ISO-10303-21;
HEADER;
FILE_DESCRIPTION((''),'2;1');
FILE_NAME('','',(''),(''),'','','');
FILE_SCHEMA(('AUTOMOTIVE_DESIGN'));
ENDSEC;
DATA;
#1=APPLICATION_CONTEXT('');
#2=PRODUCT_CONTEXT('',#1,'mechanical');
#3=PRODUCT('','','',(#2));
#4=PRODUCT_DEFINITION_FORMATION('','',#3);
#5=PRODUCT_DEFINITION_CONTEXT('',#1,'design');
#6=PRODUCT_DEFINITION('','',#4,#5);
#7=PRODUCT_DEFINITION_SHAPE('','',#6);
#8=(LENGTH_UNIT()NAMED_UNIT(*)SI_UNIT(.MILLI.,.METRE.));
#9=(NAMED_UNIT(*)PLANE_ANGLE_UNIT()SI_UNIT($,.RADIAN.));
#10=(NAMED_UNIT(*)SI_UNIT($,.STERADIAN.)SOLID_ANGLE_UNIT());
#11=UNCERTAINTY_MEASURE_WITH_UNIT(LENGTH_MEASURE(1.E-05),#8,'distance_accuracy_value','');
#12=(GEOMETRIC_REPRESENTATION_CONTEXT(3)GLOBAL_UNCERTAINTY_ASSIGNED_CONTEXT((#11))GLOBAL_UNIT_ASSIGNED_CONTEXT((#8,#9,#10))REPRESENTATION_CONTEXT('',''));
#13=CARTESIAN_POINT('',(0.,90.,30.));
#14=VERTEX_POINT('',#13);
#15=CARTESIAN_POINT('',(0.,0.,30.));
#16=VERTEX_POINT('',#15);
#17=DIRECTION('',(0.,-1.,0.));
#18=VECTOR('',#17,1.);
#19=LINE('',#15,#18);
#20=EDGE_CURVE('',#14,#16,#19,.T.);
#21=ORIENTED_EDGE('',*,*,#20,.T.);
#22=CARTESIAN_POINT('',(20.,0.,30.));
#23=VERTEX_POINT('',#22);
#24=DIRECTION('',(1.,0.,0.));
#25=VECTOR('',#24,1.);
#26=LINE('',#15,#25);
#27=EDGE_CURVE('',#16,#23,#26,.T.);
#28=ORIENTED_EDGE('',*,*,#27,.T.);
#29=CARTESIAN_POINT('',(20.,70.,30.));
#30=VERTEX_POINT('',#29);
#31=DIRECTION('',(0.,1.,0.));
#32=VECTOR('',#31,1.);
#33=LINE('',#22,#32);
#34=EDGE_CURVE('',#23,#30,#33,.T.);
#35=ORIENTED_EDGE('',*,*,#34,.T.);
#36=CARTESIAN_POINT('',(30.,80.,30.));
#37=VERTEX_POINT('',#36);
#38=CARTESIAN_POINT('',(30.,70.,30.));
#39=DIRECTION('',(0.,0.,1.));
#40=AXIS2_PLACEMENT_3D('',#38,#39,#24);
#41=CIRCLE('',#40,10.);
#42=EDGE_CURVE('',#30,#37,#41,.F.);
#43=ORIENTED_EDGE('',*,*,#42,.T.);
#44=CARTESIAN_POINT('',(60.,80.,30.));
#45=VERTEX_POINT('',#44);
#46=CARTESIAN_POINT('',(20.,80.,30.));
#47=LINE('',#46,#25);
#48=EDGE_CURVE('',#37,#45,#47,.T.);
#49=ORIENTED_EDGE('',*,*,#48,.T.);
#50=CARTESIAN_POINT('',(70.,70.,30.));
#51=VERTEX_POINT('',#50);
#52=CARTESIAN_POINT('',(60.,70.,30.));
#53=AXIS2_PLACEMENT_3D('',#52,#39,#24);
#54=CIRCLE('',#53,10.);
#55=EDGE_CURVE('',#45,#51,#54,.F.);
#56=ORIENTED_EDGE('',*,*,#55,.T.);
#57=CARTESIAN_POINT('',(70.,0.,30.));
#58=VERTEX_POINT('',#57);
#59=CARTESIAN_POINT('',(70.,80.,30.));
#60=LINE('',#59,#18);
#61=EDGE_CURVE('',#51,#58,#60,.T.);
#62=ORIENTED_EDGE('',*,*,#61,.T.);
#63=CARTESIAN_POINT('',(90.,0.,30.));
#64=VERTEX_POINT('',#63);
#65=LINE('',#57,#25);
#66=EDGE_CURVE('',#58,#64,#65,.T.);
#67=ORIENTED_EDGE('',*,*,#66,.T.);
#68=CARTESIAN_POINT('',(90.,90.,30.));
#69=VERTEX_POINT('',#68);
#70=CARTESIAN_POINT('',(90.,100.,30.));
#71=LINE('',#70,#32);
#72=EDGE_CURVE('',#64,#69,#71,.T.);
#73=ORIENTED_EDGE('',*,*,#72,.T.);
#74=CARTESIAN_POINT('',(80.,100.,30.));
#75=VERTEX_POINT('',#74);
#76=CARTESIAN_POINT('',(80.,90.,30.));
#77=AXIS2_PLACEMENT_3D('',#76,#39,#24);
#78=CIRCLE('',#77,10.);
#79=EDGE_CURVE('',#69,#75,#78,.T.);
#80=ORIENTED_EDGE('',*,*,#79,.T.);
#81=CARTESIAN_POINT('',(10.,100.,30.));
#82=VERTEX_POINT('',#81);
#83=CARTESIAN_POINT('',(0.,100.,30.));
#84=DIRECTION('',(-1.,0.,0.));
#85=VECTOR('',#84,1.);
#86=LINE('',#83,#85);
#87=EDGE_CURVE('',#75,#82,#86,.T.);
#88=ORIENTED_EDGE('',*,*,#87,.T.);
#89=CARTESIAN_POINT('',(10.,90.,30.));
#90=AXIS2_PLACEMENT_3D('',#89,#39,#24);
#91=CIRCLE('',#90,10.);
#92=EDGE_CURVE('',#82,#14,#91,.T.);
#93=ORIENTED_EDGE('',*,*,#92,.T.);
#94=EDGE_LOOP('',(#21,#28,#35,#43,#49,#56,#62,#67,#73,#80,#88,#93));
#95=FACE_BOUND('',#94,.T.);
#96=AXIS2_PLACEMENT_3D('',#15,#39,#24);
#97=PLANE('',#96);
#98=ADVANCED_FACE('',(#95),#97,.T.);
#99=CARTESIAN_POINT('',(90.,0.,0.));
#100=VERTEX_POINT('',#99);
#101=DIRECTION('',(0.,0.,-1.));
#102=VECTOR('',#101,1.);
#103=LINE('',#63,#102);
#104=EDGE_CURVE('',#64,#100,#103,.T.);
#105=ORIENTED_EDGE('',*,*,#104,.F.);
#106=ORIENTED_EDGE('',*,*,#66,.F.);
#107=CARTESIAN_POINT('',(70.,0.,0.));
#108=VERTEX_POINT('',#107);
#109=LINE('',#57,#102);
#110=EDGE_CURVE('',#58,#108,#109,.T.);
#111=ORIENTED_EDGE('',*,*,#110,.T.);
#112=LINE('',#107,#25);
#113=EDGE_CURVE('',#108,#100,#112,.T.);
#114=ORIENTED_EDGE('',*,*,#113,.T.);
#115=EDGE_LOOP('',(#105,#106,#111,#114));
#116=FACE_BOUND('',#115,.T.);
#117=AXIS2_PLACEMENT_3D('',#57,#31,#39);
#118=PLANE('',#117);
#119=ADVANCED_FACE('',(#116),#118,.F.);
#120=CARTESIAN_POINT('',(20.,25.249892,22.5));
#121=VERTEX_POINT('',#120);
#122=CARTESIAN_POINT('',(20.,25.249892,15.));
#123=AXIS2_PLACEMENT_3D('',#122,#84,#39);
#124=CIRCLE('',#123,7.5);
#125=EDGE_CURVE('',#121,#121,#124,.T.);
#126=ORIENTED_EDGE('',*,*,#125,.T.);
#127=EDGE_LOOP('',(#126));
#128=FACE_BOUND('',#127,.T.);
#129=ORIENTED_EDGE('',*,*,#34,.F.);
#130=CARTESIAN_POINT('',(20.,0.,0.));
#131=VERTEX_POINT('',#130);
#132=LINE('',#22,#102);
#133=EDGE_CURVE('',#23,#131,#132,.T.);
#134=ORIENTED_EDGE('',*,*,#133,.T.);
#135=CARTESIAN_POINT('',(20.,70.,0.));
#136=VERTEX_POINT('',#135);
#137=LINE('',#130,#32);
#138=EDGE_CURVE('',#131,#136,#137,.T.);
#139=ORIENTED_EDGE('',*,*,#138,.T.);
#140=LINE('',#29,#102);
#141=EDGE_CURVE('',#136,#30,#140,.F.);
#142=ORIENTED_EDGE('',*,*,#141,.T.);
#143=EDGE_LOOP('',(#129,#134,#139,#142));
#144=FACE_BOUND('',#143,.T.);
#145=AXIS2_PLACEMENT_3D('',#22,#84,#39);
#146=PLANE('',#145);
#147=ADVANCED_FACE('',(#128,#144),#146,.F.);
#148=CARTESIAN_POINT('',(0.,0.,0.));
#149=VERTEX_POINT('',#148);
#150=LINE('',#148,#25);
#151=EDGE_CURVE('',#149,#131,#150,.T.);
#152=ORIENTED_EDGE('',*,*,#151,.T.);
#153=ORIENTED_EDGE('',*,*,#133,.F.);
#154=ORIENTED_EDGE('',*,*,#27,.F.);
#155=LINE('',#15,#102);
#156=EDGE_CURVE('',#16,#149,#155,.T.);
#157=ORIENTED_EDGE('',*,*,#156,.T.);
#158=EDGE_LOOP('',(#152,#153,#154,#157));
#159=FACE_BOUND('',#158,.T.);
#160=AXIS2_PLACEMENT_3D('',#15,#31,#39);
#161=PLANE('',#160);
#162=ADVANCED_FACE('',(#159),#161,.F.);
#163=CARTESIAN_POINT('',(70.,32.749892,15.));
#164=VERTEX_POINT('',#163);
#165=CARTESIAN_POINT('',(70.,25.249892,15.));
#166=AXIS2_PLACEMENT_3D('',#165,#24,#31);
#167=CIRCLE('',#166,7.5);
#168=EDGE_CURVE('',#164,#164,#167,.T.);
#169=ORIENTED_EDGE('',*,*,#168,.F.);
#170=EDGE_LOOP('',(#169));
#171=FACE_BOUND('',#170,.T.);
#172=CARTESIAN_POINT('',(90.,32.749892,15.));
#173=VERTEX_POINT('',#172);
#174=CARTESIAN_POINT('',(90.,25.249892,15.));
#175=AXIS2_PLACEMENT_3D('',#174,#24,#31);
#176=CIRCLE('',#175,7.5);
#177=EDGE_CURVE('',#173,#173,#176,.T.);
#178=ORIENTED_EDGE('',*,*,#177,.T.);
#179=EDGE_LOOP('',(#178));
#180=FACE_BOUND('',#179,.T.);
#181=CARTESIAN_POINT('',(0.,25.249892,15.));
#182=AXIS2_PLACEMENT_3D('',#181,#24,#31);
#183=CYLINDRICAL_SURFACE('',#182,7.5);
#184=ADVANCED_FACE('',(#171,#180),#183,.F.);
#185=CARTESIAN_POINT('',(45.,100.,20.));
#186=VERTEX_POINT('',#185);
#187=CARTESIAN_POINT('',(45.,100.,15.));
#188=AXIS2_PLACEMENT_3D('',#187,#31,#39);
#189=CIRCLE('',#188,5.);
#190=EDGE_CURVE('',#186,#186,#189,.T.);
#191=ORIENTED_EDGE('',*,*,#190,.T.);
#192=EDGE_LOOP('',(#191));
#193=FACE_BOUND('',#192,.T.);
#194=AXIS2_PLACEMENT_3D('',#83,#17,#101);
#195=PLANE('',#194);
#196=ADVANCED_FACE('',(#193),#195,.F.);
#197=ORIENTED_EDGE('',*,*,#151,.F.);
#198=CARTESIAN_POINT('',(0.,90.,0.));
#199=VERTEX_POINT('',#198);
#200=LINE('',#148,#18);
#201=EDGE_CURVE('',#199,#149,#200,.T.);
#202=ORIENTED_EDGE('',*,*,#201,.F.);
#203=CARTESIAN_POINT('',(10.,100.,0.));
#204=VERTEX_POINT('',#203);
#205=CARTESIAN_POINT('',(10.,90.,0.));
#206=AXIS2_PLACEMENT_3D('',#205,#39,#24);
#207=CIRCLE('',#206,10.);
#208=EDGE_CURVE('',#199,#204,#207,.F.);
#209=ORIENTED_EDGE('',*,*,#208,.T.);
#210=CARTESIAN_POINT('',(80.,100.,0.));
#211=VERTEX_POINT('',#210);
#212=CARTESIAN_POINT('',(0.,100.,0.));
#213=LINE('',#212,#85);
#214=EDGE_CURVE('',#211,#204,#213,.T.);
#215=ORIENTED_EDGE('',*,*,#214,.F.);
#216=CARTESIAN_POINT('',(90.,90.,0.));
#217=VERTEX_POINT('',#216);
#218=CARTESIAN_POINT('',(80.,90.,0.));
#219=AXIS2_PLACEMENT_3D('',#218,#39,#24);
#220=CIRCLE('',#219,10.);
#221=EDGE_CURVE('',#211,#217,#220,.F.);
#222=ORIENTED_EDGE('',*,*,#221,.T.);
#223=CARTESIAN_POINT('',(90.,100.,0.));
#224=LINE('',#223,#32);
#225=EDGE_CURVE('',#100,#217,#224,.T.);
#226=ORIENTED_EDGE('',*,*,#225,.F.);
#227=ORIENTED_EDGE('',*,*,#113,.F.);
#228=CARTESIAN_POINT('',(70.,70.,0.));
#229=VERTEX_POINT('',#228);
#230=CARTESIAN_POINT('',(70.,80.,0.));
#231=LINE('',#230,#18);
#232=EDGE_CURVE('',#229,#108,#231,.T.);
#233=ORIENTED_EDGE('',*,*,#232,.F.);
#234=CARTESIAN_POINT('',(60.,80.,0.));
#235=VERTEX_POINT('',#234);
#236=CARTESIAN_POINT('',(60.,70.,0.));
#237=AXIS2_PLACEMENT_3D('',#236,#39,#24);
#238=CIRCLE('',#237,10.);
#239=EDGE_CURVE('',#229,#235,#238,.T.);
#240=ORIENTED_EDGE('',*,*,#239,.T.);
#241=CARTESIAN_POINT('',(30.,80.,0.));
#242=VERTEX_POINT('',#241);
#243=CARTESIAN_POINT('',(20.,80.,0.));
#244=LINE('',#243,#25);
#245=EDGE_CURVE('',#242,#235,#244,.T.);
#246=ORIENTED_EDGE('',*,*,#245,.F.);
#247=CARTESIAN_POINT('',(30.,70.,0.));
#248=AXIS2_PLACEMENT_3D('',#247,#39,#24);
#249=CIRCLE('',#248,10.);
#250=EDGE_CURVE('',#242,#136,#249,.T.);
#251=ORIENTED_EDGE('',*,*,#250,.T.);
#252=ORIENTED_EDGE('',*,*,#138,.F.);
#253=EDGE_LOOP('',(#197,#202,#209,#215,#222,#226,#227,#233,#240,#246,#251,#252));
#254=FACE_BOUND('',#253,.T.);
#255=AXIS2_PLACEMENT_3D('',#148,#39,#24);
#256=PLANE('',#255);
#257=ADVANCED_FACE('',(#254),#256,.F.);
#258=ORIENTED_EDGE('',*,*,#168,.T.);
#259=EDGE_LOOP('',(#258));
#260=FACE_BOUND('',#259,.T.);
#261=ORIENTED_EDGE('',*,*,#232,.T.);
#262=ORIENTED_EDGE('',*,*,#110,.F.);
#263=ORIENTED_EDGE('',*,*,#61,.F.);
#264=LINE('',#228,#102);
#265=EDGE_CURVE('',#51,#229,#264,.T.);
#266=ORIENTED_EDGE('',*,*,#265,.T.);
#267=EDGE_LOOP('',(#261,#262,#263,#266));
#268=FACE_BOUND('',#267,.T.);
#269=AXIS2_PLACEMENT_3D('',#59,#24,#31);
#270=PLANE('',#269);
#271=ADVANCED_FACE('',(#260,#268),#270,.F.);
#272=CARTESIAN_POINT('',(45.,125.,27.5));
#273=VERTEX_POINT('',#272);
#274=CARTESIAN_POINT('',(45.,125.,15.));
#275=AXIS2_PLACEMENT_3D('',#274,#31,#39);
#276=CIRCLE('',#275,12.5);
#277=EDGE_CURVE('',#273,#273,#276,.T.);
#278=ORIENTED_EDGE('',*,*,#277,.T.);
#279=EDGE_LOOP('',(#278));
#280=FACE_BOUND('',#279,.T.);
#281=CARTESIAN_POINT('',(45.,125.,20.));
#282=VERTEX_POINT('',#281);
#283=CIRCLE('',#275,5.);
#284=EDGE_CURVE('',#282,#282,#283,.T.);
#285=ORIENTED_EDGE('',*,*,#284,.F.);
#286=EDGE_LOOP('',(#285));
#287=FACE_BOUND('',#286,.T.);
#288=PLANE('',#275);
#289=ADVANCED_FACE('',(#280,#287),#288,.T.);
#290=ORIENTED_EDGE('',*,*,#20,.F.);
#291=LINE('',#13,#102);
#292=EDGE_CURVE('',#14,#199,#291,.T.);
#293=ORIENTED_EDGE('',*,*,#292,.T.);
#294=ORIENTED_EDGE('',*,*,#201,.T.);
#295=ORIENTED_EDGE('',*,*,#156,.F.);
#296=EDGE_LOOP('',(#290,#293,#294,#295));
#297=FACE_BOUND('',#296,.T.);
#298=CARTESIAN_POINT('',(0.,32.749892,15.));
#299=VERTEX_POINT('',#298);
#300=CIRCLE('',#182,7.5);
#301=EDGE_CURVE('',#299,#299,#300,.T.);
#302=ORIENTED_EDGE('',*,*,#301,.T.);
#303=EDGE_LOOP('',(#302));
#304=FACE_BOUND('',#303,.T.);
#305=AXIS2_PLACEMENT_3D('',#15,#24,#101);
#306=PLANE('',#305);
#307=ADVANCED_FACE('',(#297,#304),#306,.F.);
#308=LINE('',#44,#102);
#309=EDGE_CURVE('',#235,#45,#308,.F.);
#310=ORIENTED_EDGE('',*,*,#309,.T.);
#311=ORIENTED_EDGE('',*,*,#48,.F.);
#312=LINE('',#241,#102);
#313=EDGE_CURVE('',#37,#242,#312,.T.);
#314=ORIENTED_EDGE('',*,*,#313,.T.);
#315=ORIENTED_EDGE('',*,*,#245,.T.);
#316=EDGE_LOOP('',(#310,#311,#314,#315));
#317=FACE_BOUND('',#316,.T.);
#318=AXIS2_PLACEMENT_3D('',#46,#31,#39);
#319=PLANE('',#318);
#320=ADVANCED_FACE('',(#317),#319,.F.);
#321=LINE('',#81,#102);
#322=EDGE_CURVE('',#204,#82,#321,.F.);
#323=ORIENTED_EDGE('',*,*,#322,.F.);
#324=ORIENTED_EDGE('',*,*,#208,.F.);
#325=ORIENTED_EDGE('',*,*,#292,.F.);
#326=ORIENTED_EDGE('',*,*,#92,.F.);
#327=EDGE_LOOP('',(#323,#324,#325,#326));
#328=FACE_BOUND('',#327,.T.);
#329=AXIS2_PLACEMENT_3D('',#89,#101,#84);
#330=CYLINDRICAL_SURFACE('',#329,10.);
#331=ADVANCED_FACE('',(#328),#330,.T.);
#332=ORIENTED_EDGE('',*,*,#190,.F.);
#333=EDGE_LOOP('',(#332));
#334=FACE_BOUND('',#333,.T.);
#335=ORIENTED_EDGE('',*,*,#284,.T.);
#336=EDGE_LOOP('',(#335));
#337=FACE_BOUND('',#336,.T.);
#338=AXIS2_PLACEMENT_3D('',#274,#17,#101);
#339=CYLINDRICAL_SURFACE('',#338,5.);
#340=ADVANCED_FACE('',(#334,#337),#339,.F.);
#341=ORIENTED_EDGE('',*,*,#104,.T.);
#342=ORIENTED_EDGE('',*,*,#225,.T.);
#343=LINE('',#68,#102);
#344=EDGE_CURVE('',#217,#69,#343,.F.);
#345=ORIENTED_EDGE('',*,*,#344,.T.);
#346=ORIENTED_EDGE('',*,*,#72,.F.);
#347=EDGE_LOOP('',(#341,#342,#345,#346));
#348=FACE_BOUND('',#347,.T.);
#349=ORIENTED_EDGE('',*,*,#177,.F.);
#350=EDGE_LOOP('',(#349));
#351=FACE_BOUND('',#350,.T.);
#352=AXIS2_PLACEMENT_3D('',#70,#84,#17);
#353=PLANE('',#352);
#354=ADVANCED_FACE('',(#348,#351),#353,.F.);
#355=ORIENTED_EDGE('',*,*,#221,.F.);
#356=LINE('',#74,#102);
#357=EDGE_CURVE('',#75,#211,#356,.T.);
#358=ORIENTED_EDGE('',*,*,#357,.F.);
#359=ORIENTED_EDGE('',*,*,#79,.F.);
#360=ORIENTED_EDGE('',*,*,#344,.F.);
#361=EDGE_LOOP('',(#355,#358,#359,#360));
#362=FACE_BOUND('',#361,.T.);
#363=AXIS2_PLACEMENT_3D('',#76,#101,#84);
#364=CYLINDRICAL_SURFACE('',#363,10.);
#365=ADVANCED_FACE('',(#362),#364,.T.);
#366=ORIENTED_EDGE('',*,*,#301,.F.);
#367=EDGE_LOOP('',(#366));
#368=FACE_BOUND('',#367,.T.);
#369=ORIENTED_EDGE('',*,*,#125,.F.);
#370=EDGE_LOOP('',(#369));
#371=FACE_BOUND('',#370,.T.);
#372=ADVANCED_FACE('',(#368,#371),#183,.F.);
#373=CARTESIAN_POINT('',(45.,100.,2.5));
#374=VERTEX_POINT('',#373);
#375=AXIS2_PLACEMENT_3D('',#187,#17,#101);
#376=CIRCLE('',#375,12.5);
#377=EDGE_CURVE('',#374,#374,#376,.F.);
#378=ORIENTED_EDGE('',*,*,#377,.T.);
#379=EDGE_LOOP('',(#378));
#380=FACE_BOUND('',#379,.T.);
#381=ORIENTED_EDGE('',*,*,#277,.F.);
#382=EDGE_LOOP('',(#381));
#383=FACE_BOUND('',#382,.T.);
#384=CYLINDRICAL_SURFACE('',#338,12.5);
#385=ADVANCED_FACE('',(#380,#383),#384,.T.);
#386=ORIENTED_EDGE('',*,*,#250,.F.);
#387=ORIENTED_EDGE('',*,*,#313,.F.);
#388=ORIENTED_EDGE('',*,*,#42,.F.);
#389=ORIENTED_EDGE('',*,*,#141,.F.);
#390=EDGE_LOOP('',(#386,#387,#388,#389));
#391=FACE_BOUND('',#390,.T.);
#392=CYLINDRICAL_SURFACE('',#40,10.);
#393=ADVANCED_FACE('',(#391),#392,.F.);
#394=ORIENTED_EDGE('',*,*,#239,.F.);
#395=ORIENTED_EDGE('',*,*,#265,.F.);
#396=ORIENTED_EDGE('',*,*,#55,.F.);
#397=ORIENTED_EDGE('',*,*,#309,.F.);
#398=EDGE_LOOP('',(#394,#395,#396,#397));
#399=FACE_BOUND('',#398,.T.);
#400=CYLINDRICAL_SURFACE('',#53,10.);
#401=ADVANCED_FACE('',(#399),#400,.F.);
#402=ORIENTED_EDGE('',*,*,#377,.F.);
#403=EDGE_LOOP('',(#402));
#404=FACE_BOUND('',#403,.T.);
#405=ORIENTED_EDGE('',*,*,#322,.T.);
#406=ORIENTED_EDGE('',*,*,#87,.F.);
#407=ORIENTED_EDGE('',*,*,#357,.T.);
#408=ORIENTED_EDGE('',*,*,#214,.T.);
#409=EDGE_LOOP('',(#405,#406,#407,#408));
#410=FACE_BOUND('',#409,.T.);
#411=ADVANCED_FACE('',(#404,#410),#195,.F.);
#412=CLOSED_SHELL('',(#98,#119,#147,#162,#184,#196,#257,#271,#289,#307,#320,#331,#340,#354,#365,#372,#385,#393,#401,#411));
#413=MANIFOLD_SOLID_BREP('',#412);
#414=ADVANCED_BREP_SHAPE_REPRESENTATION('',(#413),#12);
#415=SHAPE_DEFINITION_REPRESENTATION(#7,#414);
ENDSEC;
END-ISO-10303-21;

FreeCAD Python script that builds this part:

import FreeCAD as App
import Part
import Sketcher


def edges_at(feature, points):
    """Names of the edges that pass closest to the given points."""
    edges = feature.Shape.Edges
    near = lambda p: min(range(len(edges)), key=lambda i: edges[i].distToShape(Part.Vertex(*p))[0])
    return sorted({f"Edge{near(p) + 1}" for p in points})

doc = App.newDocument("Part")
body = doc.addObject("PartDesign::Body", "Body")

sketch1 = doc.addObject("Sketcher::SketchObject", "Sketch")
body.addObject(sketch1)
sketch1.AttachmentSupport = (doc.XY_Plane, [""])
sketch1.MapMode = "FlatFace"
sketch1.addGeometry([
    Part.LineSegment(App.Vector(0, 100, 0), App.Vector(0, 0, 0)),
    Part.LineSegment(App.Vector(0, 0, 0), App.Vector(20, 0, 0)),
    Part.LineSegment(App.Vector(20, 0, 0), App.Vector(20, 80, 0)),
    Part.LineSegment(App.Vector(20, 80, 0), App.Vector(70, 80, 0)),
    Part.LineSegment(App.Vector(70, 80, 0), App.Vector(70, 0, 0)),
    Part.LineSegment(App.Vector(70, 0, 0), App.Vector(90, 0, 0)),
    Part.LineSegment(App.Vector(90, 0, 0), App.Vector(90, 100, 0)),
    Part.LineSegment(App.Vector(90, 100, 0), App.Vector(0, 100, 0)),
], False)
sketch1.addConstraint([
    Sketcher.Constraint("Coincident", 0, 2, 1, 1),
    Sketcher.Constraint("Coincident", 1, 2, 2, 1),
    Sketcher.Constraint("Coincident", 2, 2, 3, 1),
    Sketcher.Constraint("Coincident", 3, 2, 4, 1),
    Sketcher.Constraint("Coincident", 4, 2, 5, 1),
    Sketcher.Constraint("Coincident", 5, 2, 6, 1),
    Sketcher.Constraint("Coincident", 6, 2, 7, 1),
    Sketcher.Constraint("Coincident", 7, 2, 0, 1),
    Sketcher.Constraint("Vertical", 0),
    Sketcher.Constraint("Horizontal", 1),
    Sketcher.Constraint("Vertical", 2),
    Sketcher.Constraint("Horizontal", 3),
    Sketcher.Constraint("Vertical", 4),
    Sketcher.Constraint("Horizontal", 5),
    Sketcher.Constraint("Vertical", 6),
    Sketcher.Constraint("Horizontal", 7),
    Sketcher.Constraint("Coincident", 0, 2, -1, 1),
    Sketcher.Constraint("PointOnObject", 4, 2, -1),
    Sketcher.Constraint("Equal", 1, 5),
    Sketcher.Constraint("DistanceX", 1, 1, 1, 2, 20.0),
    Sketcher.Constraint("DistanceX", 3, 1, 3, 2, 50.0),
    Sketcher.Constraint("DistanceY", 0, 2, 0, 1, 100.0),
    Sketcher.Constraint("DistanceY", 2, 1, 2, 2, 80.0),
])
pad1 = doc.addObject("PartDesign::Pad", "Pad")
body.addObject(pad1)
pad1.Profile = sketch1
pad1.Length = 30
doc.recompute()

fillet = doc.addObject("PartDesign::Fillet", "Fillet")
body.addObject(fillet)
fillet.Base = (pad1, edges_at(pad1, [
    (0, 100, 15),
    (90, 100, 15),
    (70, 80, 15),
    (20, 80, 15),
]))
fillet.Radius = 10

sketch2 = doc.addObject("Sketcher::SketchObject", "Sketch001")
body.addObject(sketch2)
sketch2.AttachmentSupport = (doc.YZ_Plane, [""])
sketch2.MapMode = "FlatFace"
sketch2.AttachmentOffset = App.Placement(App.Vector(0, 0, 90), App.Rotation())
sketch2.addGeometry(Part.Circle(App.Vector(25, 15, 0), App.Vector(0, 0, 1), 8), False)
sketch2.addConstraint([
    Sketcher.Constraint("Diameter", 0, 15.0),
    Sketcher.Constraint("DistanceY", -1, 1, 0, 3, 15.0),
    Sketcher.Constraint("DistanceX", -1, 1, 0, 3, 25.249892),
])
pocket1 = doc.addObject("PartDesign::Pocket", "Pocket")
body.addObject(pocket1)
pocket1.Profile = sketch2
pocket1.Type = "ThroughAll"

sketch3 = doc.addObject("Sketcher::SketchObject", "Sketch002")
body.addObject(sketch3)
sketch3.AttachmentSupport = (doc.XZ_Plane, [""])
sketch3.MapMode = "FlatFace"
sketch3.AttachmentOffset = App.Placement(App.Vector(0, 0, -100), App.Rotation())
sketch3.addGeometry([
    Part.Circle(App.Vector(45, 15, 0), App.Vector(0, 0, 1), 12),
    Part.Circle(App.Vector(45, 15, 0), App.Vector(0, 0, 1), 5),
], False)
sketch3.addConstraint([
    Sketcher.Constraint("Coincident", 1, 3, 0, 3),
    Sketcher.Constraint("Diameter", 0, 25.0),
    Sketcher.Constraint("Diameter", 1, 10.0),
    Sketcher.Constraint("DistanceX", -1, 1, 0, 3, 45.0),
    Sketcher.Constraint("DistanceY", -1, 1, 0, 3, 15.0),
])
pad2 = doc.addObject("PartDesign::Pad", "Pad001")
body.addObject(pad2)
pad2.Profile = sketch3
pad2.Length = 25
pad2.Reversed = True

doc.recompute()
